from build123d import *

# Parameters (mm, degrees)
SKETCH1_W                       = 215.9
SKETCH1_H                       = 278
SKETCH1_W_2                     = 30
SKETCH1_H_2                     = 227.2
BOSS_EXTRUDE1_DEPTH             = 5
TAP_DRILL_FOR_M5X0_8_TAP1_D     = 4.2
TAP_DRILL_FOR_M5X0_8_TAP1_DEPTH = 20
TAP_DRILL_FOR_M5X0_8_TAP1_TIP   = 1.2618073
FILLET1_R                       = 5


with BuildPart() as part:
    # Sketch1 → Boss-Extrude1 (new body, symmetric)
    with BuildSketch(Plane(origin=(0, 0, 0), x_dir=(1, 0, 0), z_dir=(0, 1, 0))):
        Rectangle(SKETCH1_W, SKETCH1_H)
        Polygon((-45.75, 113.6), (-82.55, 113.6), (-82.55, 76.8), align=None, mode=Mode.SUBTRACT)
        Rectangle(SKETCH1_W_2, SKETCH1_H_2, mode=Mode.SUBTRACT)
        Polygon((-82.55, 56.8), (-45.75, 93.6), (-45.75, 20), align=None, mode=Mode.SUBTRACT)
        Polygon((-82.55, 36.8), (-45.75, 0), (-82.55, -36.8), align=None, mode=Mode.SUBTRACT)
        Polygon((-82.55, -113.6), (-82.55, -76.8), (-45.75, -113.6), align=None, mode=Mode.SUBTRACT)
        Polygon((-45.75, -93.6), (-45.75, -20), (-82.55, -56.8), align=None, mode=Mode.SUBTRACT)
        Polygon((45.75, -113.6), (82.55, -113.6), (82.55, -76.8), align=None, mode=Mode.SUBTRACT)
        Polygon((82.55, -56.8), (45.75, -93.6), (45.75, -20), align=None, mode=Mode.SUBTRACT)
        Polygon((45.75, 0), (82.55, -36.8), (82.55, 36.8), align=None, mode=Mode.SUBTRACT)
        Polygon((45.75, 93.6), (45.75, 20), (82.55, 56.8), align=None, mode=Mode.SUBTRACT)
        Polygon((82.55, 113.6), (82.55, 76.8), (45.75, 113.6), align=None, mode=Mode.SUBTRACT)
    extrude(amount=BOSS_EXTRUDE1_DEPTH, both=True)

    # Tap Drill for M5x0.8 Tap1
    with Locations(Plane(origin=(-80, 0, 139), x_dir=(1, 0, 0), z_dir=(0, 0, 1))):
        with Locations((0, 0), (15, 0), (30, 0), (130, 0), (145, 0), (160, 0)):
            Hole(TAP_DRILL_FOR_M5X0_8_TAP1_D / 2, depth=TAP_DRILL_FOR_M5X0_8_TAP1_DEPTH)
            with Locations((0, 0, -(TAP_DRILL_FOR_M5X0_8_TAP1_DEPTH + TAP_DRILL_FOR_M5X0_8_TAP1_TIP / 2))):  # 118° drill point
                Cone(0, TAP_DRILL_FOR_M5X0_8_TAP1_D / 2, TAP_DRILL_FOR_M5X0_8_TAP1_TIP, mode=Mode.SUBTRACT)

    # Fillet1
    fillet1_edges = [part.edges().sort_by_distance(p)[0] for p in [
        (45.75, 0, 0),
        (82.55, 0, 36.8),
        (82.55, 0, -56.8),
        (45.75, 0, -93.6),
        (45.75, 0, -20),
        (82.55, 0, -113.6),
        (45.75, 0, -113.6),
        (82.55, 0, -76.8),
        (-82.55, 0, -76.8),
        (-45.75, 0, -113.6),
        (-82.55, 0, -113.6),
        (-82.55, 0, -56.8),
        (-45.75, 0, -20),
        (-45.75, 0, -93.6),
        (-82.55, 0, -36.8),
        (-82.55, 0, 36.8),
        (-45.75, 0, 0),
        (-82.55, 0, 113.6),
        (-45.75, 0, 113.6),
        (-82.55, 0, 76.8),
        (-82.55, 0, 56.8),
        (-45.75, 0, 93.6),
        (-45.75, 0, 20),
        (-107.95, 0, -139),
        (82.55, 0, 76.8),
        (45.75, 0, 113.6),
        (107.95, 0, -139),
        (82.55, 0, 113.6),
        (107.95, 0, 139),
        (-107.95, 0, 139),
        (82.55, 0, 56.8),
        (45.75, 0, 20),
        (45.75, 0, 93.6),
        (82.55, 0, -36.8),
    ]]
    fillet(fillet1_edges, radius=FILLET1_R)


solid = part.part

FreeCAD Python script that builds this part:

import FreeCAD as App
import Part
import Sketcher
from FreeCAD import Vector


def edges_at(feature, points):
    """Names of the edges that pass closest to the given points."""
    edges = feature.Shape.Edges
    near = lambda p: min(range(len(edges)), key=lambda i: edges[i].distToShape(Part.Vertex(*p))[0])
    return sorted({f"Edge{near(p) + 1}" for p in points})


def add_polygon(sketch, points):
    """Adds a closed chain of lines whose ends are joined by coincident constraints."""
    first, n = sketch.GeometryCount, len(points)
    for a, b in zip(points, points[1:] + points[:1]):
        sketch.addGeometry(Part.LineSegment(App.Vector(*a, 0), App.Vector(*b, 0)), False)
    for i in range(n):
        sketch.addConstraint(Sketcher.Constraint("Coincident", first + i, 2, first + (i + 1) % n, 1))

doc = App.newDocument("Part")
body = doc.addObject("PartDesign::Body", "Body")

# Sketch on XZ plane
sketch1 = doc.addObject("Sketcher::SketchObject", "Sketch")
body.addObject(sketch1)
sketch1.AttachmentSupport = (doc.XZ_Plane, [""])
sketch1.MapMode = "FlatFace"
add_polygon(sketch1, [(-107.95, -139), (-107.95, 139), (107.95, 139), (107.95, -139)])  # lines 0-3
add_polygon(sketch1, [(-45.75, 113.6), (-82.55, 113.6), (-82.55, 76.8)])  # lines 4-6
add_polygon(sketch1, [(-45.75, 20), (-45.75, 93.6), (-82.55, 56.8)])  # lines 7-9
add_polygon(sketch1, [(82.55, 113.6), (45.75, 113.6), (82.55, 76.8)])  # lines 10-12
add_polygon(sketch1, [(45.75, 20), (82.55, 56.8), (45.75, 93.6)])  # lines 13-15
add_polygon(sketch1, [(-82.55, 36.8), (-82.55, -36.8), (-45.75, 0)])  # lines 16-18
add_polygon(sketch1, [(-45.75, -20), (-82.55, -56.8), (-45.75, -93.6)])  # lines 19-21
add_polygon(sketch1, [(-82.55, -113.6), (-45.75, -113.6), (-82.55, -76.8)])  # lines 22-24
add_polygon(sketch1, [(15, 113.6), (-15, 113.6), (-15, -113.6), (15, -113.6)])  # lines 25-28
add_polygon(sketch1, [(82.55, 36.8), (45.75, 0), (82.55, -36.8)])  # lines 29-31
add_polygon(sketch1, [(45.75, -20), (45.75, -93.6), (82.55, -56.8)])  # lines 32-34
add_polygon(sketch1, [(45.75, -113.6), (82.55, -113.6), (82.55, -76.8)])  # lines 35-37
sketch1.addConstraint([
    Sketcher.Constraint("Vertical", 0),
    Sketcher.Constraint("Horizontal", 1),
    Sketcher.Constraint("Vertical", 2),
    Sketcher.Constraint("Horizontal", 3),
    Sketcher.Constraint("Horizontal", 4),
    Sketcher.Constraint("Vertical", 5),
    Sketcher.Constraint("Vertical", 7),
    Sketcher.Constraint("Horizontal", 10),
    Sketcher.Constraint("Vertical", 12),
    Sketcher.Constraint("Vertical", 15),
    Sketcher.Constraint("Vertical", 16),
    Sketcher.Constraint("Vertical", 21),
    Sketcher.Constraint("Horizontal", 22),
    Sketcher.Constraint("Vertical", 24),
    Sketcher.Constraint("Horizontal", 25),
    Sketcher.Constraint("Vertical", 26),
    Sketcher.Constraint("Horizontal", 27),
    Sketcher.Constraint("Vertical", 28),
    Sketcher.Constraint("Vertical", 31),
    Sketcher.Constraint("Vertical", 32),
    Sketcher.Constraint("Horizontal", 35),
    Sketcher.Constraint("Vertical", 36),
    Sketcher.Constraint("Symmetric", 0, 2, 2, 2, -1, 1),
    Sketcher.Constraint("Symmetric", 13, 2, 19, 2, -1, 1),
    Sketcher.Constraint("Symmetric", 14, 2, 20, 2, -1, 1),
    Sketcher.Constraint("Symmetric", 10, 2, 22, 2, -1, 1),
    Sketcher.Constraint("Symmetric", 11, 2, 23, 2, -1, 1),
    Sketcher.Constraint("Symmetric", 25, 2, 27, 2, -1, 1),
    Sketcher.Constraint("Symmetric", 17, 2, 29, 2, -1, 1),
    Sketcher.Constraint("Symmetric", 18, 2, 30, 2, -1, 1),
    Sketcher.Constraint("Symmetric", 7, 2, 32, 2, -1, 1),
    Sketcher.Constraint("Symmetric", 8, 2, 33, 2, -1, 1),
    Sketcher.Constraint("Symmetric", 4, 2, 35, 2, -1, 1),
    Sketcher.Constraint("Symmetric", 6, 2, 10, 2, -2),
    Sketcher.Constraint("Symmetric", 5, 2, 11, 2, -2),
    Sketcher.Constraint("Symmetric", 8, 2, 13, 2, -2),
    Sketcher.Constraint("Symmetric", 7, 2, 14, 2, -2),
    Sketcher.Constraint("PointOnObject", 17, 2, -1),
    Sketcher.Constraint("Parallel", 6, 8),
    Sketcher.Constraint("Perpendicular", 8, 9),
    Sketcher.Constraint("Parallel", 9, 11),
    Sketcher.Constraint("Perpendicular", 11, 13),
    Sketcher.Constraint("Perpendicular", 14, 17),
    Sketcher.Constraint("Perpendicular", 17, 18),
    Sketcher.Constraint("Perpendicular", 18, 19),
    Sketcher.Constraint("Perpendicular", 23, 29),
    Sketcher.Constraint("Perpendicular", 33, 34),
    Sketcher.Constraint("Perpendicular", 34, 37),
    Sketcher.Constraint("Horizontal", 12, 2, 25, 2),
    Sketcher.Constraint("Horizontal", 23, 2, 36, 2),
    Sketcher.Constraint("Vertical", 6, 2, 7, 2),
    Sketcher.Constraint("Vertical", 5, 2, 8, 2),
    Sketcher.Constraint("Vertical", 8, 2, 16, 2),
    Sketcher.Constraint("Vertical", 9, 2, 17, 2),
    Sketcher.Constraint("DistanceX", 25, 2, 25, 1, 30.0),
    Sketcher.Constraint("DistanceY", 0, 1, 0, 2, 278.0),
    Sketcher.Constraint("DistanceX", 1, 1, 1, 2, 215.9),
    Sketcher.Constraint("DistanceX", 4, 2, 4, 1, 36.8),
    Sketcher.Constraint("DistanceY", 26, 2, 26, 1, 227.2),
    Sketcher.Constraint("DistanceY", -1, 1, 9, 2, 20.0),
    Sketcher.Constraint("DistanceX", 0, 2, 4, 2, 25.4),
])
pad1 = doc.addObject("PartDesign::Pad", "Pad")
body.addObject(pad1)
pad1.Profile = sketch1
pad1.Length = 10
pad1.Midplane = True

# Sketch on XY plane
sketch2 = doc.addObject("Sketcher::SketchObject", "Sketch001")
body.addObject(sketch2)
sketch2.AttachmentSupport = (doc.XY_Plane, [""])
sketch2.MapMode = "FlatFace"
sketch2.AttachmentOffset = App.Placement(Vector(0, 0, 139), App.Rotation())
sketch2.addGeometry([
    Part.Circle(Vector(-80, 0, 0), Vector(0, 0, 1), 2.1),  # 0
    Part.Circle(Vector(-65, 0, 0), Vector(0, 0, 1), 2.1),  # 1
    Part.Circle(Vector(-50, 0, 0), Vector(0, 0, 1), 2.1),  # 2
    Part.Circle(Vector(50, 0, 0), Vector(0, 0, 1), 2.1),  # 3
    Part.Circle(Vector(65, 0, 0), Vector(0, 0, 1), 2.1),  # 4
    Part.Circle(Vector(80, 0, 0), Vector(0, 0, 1), 2.1),  # 5
], False)
sketch2.addConstraint([
    Sketcher.Constraint("Equal", 0, 1),
    Sketcher.Constraint("Equal", 1, 2),
    Sketcher.Constraint("Equal", 2, 3),
    Sketcher.Constraint("Equal", 3, 4),
    Sketcher.Constraint("Equal", 4, 5),
    Sketcher.Constraint("Symmetric", 2, 3, 3, 3, -1, 1),
    Sketcher.Constraint("Symmetric", 1, 3, 4, 3, -1, 1),
    Sketcher.Constraint("Symmetric", 0, 3, 5, 3, -1, 1),
    Sketcher.Constraint("PointOnObject", 0, 3, -1),
    Sketcher.Constraint("PointOnObject", 1, 3, -1),
    Sketcher.Constraint("PointOnObject", 2, 3, -1),
    Sketcher.Constraint("Diameter", 0, 4.2),
    Sketcher.Constraint("DistanceX", 0, 3, -1, 1, 80.0),
    Sketcher.Constraint("DistanceX", 1, 3, -1, 1, 65.0),
    Sketcher.Constraint("DistanceX", 2, 3, -1, 1, 50.0),
])
doc.recompute()
hole = doc.addObject("PartDesign::Hole", "Hole")
body.addObject(hole)
hole.Profile = sketch2
hole.ThreadType = "None"
hole.Diameter = 4.2
hole.DepthType = "Dimension"
hole.Depth = 20
hole.DrillPoint = "Angled"
hole.DrillPointAngle = 118
doc.recompute()

fillet = doc.addObject("PartDesign::Fillet", "Fillet")
body.addObject(fillet)
fillet.Base = (hole, edges_at(hole, [
    (45.75, 0, 0),
    (82.55, 0, 36.8),
    (82.55, 0, -56.8),
    (45.75, 0, -93.6),
    (45.75, 0, -20),
    (82.55, 0, -113.6),
    (45.75, 0, -113.6),
    (82.55, 0, -76.8),
    (-82.55, 0, -76.8),
    (-45.75, 0, -113.6),
    (-82.55, 0, -113.6),
    (-82.55, 0, -56.8),
    (-45.75, 0, -20),
    (-45.75, 0, -93.6),
    (-82.55, 0, -36.8),
    (-82.55, 0, 36.8),
    (-45.75, 0, 0),
    (-82.55, 0, 113.6),
    (-45.75, 0, 113.6),
    (-82.55, 0, 76.8),
    (-82.55, 0, 56.8),
    (-45.75, 0, 93.6),
    (-45.75, 0, 20),
    (-107.95, 0, -139),
    (82.55, 0, 76.8),
    (45.75, 0, 113.6),
    (107.95, 0, -139),
    (82.55, 0, 113.6),
    (107.95, 0, 139),
    (-107.95, 0, 139),
    (82.55, 0, 56.8),
    (45.75, 0, 20),
    (45.75, 0, 93.6),
    (82.55, 0, -36.8),
]))
fillet.Radius = 5

doc.recompute()
